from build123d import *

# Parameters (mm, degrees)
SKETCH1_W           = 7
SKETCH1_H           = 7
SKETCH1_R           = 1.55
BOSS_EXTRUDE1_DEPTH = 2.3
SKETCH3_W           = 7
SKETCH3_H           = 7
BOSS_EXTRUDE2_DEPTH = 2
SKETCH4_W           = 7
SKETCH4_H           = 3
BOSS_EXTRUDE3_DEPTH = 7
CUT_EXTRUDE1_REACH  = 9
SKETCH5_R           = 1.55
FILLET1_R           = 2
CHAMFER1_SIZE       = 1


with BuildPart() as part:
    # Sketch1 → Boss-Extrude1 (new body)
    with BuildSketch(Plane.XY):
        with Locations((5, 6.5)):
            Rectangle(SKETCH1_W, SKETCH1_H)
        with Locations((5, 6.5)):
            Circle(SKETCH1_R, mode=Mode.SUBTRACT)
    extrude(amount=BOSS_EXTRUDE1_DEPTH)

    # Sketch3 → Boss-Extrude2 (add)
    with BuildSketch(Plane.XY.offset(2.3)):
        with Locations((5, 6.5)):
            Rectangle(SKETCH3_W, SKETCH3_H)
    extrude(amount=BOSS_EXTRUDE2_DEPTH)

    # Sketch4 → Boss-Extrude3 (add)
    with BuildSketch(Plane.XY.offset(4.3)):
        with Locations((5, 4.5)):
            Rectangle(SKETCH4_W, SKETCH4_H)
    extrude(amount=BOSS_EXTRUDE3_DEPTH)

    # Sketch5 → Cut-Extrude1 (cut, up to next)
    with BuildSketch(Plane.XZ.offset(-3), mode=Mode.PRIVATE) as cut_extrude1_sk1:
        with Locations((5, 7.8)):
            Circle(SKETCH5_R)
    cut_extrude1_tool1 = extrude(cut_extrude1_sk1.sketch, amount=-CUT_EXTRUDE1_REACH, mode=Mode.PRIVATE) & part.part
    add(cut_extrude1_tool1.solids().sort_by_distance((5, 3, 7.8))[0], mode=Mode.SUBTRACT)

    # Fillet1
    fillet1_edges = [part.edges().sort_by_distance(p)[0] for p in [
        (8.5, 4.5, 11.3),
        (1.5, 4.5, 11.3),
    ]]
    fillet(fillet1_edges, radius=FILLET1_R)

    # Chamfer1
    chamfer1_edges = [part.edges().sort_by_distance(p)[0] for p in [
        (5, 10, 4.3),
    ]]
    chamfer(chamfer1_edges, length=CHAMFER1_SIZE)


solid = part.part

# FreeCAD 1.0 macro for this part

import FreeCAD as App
import Part
import Sketcher
Q = App.Units.Quantity


def edges_at(feature, points):
    """Names of the edges that pass closest to the given points."""
    edges = feature.Shape.Edges
    near = lambda p: min(range(len(edges)), key=lambda i: edges[i].distToShape(Part.Vertex(*p))[0])
    return sorted({f"Edge{near(p) + 1}" for p in points})

doc = App.newDocument("Part")
body = doc.addObject("PartDesign::Body", "Body")

# Sketch on XY plane
sketch1 = body.newObject("Sketcher::SketchObject", "Sketch")
sketch1.AttachmentSupport = (doc.getObject("XY_Plane"), [""])
sketch1.MapMode = "FlatFace"
sketch1.addGeometry(Part.LineSegment(App.Vector(1.5, 10, 0), App.Vector(1.5, 3, 0)), False)
sketch1.addGeometry(Part.LineSegment(App.Vector(1.5, 3, 0), App.Vector(8.5, 3, 0)), False)
sketch1.addGeometry(Part.LineSegment(App.Vector(8.5, 3, 0), App.Vector(8.5, 10, 0)), False)
sketch1.addGeometry(Part.LineSegment(App.Vector(8.5, 10, 0), App.Vector(1.5, 10, 0)), False)
sketch1.addGeometry(Part.Circle(App.Vector(5, 6.5, 0), App.Vector(0, 0, 1), 1.55), False)
sketch1.addConstraint(Sketcher.Constraint("Coincident", 0, 2, 1, 1))
sketch1.addConstraint(Sketcher.Constraint("Coincident", 1, 2, 2, 1))
sketch1.addConstraint(Sketcher.Constraint("Coincident", 2, 2, 3, 1))
sketch1.addConstraint(Sketcher.Constraint("Coincident", 3, 2, 0, 1))
sketch1.addConstraint(Sketcher.Constraint("Vertical", 0))
sketch1.addConstraint(Sketcher.Constraint("Horizontal", 1))
sketch1.addConstraint(Sketcher.Constraint("Vertical", 2))
sketch1.addConstraint(Sketcher.Constraint("Horizontal", 3))
sketch1.addConstraint(Sketcher.Constraint("Equal", 3, 0))
sketch1.addConstraint(Sketcher.Constraint("Diameter", 4, Q("3.1 mm")))
sketch1.addConstraint(Sketcher.Constraint("DistanceX", 1, 1, 1, 2, Q("7 mm")))
sketch1.addConstraint(Sketcher.Constraint("DistanceX", -1, 1, 4, 3, Q("5 mm")))
sketch1.addConstraint(Sketcher.Constraint("DistanceY", -1, 1, 0, 2, Q("3 mm")))
sketch1.addConstraint(Sketcher.Constraint("DistanceY", -1, 1, 4, 3, Q("6.5 mm")))
sketch1.addConstraint(Sketcher.Constraint("DistanceX", -1, 1, 0, 2, Q("1.5 mm")))
pad1 = body.newObject("PartDesign::Pad", "Pad")
pad1.Profile = sketch1
pad1.Length = 2.3

# Sketch on XY plane
sketch2 = body.newObject("Sketcher::SketchObject", "Sketch001")
sketch2.AttachmentSupport = (doc.getObject("XY_Plane"), [""])
sketch2.MapMode = "FlatFace"
sketch2.AttachmentOffset = App.Placement(App.Vector(0, 0, 2.3), App.Rotation())
sketch2.addGeometry(Part.LineSegment(App.Vector(1.5, 10, 0), App.Vector(1.5, 3, 0)), False)
sketch2.addGeometry(Part.LineSegment(App.Vector(1.5, 3, 0), App.Vector(8.5, 3, 0)), False)
sketch2.addGeometry(Part.LineSegment(App.Vector(8.5, 3, 0), App.Vector(8.5, 10, 0)), False)
sketch2.addGeometry(Part.LineSegment(App.Vector(8.5, 10, 0), App.Vector(1.5, 10, 0)), False)
sketch2.addConstraint(Sketcher.Constraint("Coincident", 0, 2, 1, 1))
sketch2.addConstraint(Sketcher.Constraint("Coincident", 1, 2, 2, 1))
sketch2.addConstraint(Sketcher.Constraint("Coincident", 2, 2, 3, 1))
sketch2.addConstraint(Sketcher.Constraint("Coincident", 3, 2, 0, 1))
sketch2.addConstraint(Sketcher.Constraint("Vertical", 0))
sketch2.addConstraint(Sketcher.Constraint("Horizontal", 1))
sketch2.addConstraint(Sketcher.Constraint("Vertical", 2))
sketch2.addConstraint(Sketcher.Constraint("Horizontal", 3))
sketch2.addConstraint(Sketcher.Constraint("Equal", 3, 0))
sketch2.addConstraint(Sketcher.Constraint("DistanceX", 1, 1, 1, 2, Q("7 mm")))
sketch2.addConstraint(Sketcher.Constraint("DistanceY", -1, 1, 0, 2, Q("3 mm")))
sketch2.addConstraint(Sketcher.Constraint("DistanceX", -1, 1, 0, 2, Q("1.5 mm")))
pad2 = body.newObject("PartDesign::Pad", "Pad001")
pad2.Profile = sketch2
pad2.Length = 2

# Sketch on XY plane
sketch3 = body.newObject("Sketcher::SketchObject", "Sketch002")
sketch3.AttachmentSupport = (doc.getObject("XY_Plane"), [""])
sketch3.MapMode = "FlatFace"
sketch3.AttachmentOffset = App.Placement(App.Vector(0, 0, 4.3), App.Rotation())
sketch3.addGeometry(Part.LineSegment(App.Vector(1.5, 6, 0), App.Vector(1.5, 3, 0)), False)
sketch3.addGeometry(Part.LineSegment(App.Vector(1.5, 3, 0), App.Vector(8.5, 3, 0)), False)
sketch3.addGeometry(Part.LineSegment(App.Vector(8.5, 3, 0), App.Vector(8.5, 6, 0)), False)
sketch3.addGeometry(Part.LineSegment(App.Vector(8.5, 6, 0), App.Vector(1.5, 6, 0)), False)
sketch3.addConstraint(Sketcher.Constraint("Coincident", 0, 2, 1, 1))
sketch3.addConstraint(Sketcher.Constraint("Coincident", 1, 2, 2, 1))
sketch3.addConstraint(Sketcher.Constraint("Coincident", 2, 2, 3, 1))
sketch3.addConstraint(Sketcher.Constraint("Coincident", 3, 2, 0, 1))
sketch3.addConstraint(Sketcher.Constraint("Vertical", 0))
sketch3.addConstraint(Sketcher.Constraint("Horizontal", 1))
sketch3.addConstraint(Sketcher.Constraint("Vertical", 2))
sketch3.addConstraint(Sketcher.Constraint("Horizontal", 3))
sketch3.addConstraint(Sketcher.Constraint("DistanceX", 1, 1, 1, 2, Q("7 mm")))
sketch3.addConstraint(Sketcher.Constraint("DistanceY", 0, 2, 0, 1, Q("3 mm")))
sketch3.addConstraint(Sketcher.Constraint("DistanceY", -1, 1, 0, 2, Q("3 mm")))
sketch3.addConstraint(Sketcher.Constraint("DistanceX", -1, 1, 0, 2, Q("1.5 mm")))
pad3 = body.newObject("PartDesign::Pad", "Pad002")
pad3.Profile = sketch3
pad3.Length = 7

# Sketch on XZ plane
sketch4 = body.newObject("Sketcher::SketchObject", "Sketch003")
sketch4.AttachmentSupport = (doc.getObject("XZ_Plane"), [""])
sketch4.MapMode = "FlatFace"
sketch4.AttachmentOffset = App.Placement(App.Vector(0, 0, -3), App.Rotation())
sketch4.addGeometry(Part.Circle(App.Vector(5, 7.8, 0), App.Vector(0, 0, 1), 1.55), False)
sketch4.addConstraint(Sketcher.Constraint("Diameter", 0, Q("3.1 mm")))
sketch4.addConstraint(Sketcher.Constraint("DistanceX", -1, 1, 0, 3, Q("5 mm")))
sketch4.addConstraint(Sketcher.Constraint("DistanceY", -1, 1, 0, 3, Q("7.8 mm")))
pocket1 = body.newObject("PartDesign::Pocket", "Pocket")
pocket1.Profile = sketch4
pocket1.Type = "UpToFirst"
doc.recompute()

fillet = body.newObject("PartDesign::Fillet", "Fillet")
fillet.Base = (pocket1, edges_at(pocket1, [(8.5, 4.5, 11.3), (1.5, 4.5, 11.3)]))
fillet.Radius = 2
doc.recompute()

chamfer = body.newObject("PartDesign::Chamfer", "Chamfer")
chamfer.Base = (fillet, edges_at(fillet, [(5, 10, 4.3)]))
chamfer.Size = 1

doc.recompute()
